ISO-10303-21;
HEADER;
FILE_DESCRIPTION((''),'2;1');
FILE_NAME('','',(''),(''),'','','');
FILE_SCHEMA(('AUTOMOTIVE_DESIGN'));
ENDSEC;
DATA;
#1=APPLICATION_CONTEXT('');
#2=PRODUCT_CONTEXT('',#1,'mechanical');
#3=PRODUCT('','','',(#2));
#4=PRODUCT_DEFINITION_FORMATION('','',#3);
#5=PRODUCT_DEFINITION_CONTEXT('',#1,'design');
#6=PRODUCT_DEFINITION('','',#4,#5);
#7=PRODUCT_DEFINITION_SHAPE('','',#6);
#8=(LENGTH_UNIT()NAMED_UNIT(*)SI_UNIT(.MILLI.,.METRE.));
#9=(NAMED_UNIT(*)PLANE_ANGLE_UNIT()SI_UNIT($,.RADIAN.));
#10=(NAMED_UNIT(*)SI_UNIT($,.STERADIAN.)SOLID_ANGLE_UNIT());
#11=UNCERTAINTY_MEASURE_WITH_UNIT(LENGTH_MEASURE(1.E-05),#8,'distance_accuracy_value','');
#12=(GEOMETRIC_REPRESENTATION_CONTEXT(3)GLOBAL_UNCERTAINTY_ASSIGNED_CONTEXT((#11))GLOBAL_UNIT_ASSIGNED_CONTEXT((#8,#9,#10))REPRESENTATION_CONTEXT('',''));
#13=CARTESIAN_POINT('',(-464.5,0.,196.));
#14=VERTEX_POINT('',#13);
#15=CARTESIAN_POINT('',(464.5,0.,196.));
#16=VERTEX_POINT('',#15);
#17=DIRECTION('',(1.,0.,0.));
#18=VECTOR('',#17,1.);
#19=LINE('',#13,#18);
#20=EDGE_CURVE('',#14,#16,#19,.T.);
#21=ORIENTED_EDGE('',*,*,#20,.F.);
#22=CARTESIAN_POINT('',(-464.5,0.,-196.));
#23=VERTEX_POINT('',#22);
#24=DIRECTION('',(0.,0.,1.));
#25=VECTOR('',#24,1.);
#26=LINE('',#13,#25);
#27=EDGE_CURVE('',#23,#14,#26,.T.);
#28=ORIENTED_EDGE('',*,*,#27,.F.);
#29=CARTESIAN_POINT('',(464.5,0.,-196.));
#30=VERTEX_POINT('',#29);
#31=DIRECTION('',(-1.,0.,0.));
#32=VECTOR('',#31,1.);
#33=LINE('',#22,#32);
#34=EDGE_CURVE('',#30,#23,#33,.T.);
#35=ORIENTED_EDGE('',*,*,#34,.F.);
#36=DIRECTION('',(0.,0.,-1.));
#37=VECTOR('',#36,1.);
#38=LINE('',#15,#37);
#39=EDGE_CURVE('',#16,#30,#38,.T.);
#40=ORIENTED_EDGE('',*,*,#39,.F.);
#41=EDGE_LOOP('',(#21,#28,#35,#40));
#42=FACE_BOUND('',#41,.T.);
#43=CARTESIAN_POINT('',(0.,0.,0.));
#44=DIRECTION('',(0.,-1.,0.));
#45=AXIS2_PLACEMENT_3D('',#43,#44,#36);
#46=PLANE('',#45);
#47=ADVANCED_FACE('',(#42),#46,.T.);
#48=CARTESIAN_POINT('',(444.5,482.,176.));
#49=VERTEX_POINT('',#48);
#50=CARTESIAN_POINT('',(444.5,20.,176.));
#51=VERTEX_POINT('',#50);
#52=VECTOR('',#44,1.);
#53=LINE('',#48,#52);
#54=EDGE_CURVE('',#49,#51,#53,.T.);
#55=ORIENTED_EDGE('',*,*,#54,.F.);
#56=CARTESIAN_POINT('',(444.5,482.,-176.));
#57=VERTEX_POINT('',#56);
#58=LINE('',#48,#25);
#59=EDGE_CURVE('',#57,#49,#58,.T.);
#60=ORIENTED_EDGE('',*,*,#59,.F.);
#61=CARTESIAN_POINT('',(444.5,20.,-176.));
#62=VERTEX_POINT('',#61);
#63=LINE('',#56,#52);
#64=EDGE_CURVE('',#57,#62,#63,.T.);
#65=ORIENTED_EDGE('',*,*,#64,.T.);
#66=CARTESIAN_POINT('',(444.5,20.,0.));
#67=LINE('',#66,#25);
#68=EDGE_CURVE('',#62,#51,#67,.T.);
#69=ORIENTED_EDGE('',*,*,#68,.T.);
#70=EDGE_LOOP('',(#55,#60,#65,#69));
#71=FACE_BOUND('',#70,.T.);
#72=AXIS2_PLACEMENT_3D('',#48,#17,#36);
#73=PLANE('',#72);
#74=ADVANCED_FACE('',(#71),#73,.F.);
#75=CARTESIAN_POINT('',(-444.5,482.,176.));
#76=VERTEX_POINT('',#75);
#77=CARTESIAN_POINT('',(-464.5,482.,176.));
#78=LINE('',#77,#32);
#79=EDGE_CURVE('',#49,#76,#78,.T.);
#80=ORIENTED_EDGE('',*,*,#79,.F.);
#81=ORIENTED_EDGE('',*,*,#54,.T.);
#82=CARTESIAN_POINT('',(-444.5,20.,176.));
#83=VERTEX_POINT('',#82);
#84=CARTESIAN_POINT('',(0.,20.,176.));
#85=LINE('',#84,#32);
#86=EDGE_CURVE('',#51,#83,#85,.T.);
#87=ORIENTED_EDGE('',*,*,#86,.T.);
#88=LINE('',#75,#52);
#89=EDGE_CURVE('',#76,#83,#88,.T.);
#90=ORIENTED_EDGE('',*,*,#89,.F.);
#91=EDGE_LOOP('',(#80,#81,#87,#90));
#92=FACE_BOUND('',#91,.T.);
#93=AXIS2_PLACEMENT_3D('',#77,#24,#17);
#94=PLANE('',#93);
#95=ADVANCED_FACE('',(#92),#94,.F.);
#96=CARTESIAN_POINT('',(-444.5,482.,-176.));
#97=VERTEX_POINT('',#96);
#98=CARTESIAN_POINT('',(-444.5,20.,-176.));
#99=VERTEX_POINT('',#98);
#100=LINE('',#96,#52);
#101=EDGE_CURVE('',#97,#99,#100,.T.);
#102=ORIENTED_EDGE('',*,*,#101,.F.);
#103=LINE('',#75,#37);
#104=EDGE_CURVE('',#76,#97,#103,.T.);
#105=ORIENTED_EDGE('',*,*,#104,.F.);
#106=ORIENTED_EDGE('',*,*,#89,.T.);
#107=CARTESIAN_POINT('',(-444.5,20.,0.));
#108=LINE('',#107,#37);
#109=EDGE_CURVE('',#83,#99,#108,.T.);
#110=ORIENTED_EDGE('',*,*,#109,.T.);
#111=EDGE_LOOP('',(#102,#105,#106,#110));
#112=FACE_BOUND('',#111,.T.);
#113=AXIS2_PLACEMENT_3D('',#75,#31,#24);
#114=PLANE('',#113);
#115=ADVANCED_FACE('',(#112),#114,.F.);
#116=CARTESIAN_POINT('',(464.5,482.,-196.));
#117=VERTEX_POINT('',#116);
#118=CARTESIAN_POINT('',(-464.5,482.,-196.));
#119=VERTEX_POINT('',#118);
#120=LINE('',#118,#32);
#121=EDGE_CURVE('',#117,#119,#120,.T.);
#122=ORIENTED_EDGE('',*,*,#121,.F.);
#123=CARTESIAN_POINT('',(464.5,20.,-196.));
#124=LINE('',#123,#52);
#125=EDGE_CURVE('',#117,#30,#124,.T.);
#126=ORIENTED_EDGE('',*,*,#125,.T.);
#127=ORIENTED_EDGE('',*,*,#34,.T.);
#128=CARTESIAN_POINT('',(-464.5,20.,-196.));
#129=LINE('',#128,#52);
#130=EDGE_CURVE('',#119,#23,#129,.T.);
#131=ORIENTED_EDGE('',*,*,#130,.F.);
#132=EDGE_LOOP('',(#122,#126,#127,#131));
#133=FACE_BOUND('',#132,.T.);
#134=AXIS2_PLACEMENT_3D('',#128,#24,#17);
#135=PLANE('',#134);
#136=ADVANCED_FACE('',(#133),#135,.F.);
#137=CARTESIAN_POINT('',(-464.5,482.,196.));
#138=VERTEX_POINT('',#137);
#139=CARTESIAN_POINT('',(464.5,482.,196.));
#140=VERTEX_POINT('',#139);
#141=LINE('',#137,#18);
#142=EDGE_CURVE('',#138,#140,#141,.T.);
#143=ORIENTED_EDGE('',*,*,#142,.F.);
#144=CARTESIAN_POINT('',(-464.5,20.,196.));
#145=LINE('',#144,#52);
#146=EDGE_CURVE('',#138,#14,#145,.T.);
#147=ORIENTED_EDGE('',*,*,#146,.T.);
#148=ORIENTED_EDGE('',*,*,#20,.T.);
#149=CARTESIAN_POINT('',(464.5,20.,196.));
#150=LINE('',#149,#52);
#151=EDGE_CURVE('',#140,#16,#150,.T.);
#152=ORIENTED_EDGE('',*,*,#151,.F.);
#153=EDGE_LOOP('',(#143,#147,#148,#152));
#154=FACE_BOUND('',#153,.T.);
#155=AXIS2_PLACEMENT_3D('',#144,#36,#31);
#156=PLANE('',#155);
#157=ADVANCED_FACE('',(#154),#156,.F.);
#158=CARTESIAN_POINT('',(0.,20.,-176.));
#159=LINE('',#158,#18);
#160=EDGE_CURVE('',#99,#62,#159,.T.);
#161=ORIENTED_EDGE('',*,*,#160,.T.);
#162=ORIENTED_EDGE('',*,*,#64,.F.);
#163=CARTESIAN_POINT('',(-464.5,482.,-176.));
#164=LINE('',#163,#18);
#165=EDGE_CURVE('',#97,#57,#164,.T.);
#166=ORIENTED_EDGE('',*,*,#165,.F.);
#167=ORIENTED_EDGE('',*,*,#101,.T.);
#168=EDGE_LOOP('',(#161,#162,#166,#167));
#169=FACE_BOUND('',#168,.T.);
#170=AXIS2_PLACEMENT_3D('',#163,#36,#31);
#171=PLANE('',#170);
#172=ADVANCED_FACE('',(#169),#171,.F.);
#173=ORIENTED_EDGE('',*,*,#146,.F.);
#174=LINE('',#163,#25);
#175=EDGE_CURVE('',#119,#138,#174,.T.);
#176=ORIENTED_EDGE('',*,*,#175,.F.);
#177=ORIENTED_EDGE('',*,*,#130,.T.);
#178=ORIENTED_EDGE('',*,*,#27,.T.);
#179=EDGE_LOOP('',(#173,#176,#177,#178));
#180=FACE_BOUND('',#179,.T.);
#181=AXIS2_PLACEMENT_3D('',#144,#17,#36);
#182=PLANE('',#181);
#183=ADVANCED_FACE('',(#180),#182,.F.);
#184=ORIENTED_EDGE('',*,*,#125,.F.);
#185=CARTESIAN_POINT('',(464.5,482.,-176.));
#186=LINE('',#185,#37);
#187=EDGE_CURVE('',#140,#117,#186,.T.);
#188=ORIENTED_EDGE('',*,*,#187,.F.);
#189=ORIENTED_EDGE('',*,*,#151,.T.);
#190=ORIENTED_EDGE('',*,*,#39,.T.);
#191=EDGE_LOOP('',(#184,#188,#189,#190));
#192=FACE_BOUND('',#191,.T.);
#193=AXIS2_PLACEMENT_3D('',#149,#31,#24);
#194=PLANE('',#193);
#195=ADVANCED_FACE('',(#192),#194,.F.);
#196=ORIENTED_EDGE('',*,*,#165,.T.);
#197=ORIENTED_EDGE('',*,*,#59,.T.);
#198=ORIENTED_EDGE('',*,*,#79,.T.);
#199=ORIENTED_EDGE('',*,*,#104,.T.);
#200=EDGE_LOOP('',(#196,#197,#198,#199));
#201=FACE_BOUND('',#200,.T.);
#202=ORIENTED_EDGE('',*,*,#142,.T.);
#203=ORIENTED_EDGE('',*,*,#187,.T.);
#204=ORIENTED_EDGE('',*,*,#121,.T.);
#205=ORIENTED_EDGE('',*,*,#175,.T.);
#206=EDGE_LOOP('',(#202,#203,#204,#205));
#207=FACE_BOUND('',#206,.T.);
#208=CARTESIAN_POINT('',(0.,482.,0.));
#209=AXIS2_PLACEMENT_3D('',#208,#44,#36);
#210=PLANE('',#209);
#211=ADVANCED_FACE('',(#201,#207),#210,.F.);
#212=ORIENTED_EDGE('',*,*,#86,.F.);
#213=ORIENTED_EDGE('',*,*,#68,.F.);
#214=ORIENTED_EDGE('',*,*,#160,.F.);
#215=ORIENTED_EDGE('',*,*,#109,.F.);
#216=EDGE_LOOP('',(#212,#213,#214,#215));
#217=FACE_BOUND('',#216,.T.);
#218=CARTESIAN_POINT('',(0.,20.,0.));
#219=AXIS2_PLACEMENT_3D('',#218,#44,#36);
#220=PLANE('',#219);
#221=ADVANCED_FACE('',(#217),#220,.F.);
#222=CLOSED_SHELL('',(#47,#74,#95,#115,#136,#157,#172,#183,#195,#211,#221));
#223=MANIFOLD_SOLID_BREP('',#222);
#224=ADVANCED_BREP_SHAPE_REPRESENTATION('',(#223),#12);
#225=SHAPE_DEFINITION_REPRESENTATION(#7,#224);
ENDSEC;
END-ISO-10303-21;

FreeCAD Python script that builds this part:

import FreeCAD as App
import Part
import Sketcher

V = App.Vector


def add_polygon(sketch, points):
    """Adds a closed chain of lines whose ends are joined by coincident constraints."""
    first, n = sketch.GeometryCount, len(points)
    for a, b in zip(points, points[1:] + points[:1]):
        sketch.addGeometry(Part.LineSegment(App.Vector(*a, 0), App.Vector(*b, 0)), False)
    for i in range(n):
        sketch.addConstraint(Sketcher.Constraint("Coincident", first + i, 2, first + (i + 1) % n, 1))

doc = App.newDocument("Part")
body = doc.addObject("PartDesign::Body", "Body")

sketch1 = body.newObject("Sketcher::SketchObject", "Sketch")
sketch1.AttachmentSupport = (doc.getObject("XZ_Plane"), [""])
sketch1.MapMode = "FlatFace"
add_polygon(sketch1, [(-464, -196), (-464, 196), (464, 196), (464, -196)])
sketch1.addConstraint([
    Sketcher.Constraint("Vertical", 0),
    Sketcher.Constraint("Horizontal", 1),
    Sketcher.Constraint("Vertical", 2),
    Sketcher.Constraint("Horizontal", 3),
    Sketcher.Constraint("Symmetric", 0, 2, 2, 2, -1, 1),
    Sketcher.Constraint("DistanceX", 1, 1, 1, 2, 929.0),
    Sketcher.Constraint("DistanceY", 0, 1, 0, 2, 392.0),
])
pad1 = body.newObject("PartDesign::Pad", "Pad")
pad1.Profile = sketch1
pad1.Length = 20
pad1.Reversed = True

sketch2 = body.newObject("Sketcher::SketchObject", "Sketch001")
sketch2.AttachmentSupport = (doc.getObject("XZ_Plane"), [""])
sketch2.MapMode = "FlatFace"
add_polygon(sketch2, [(-464, -196), (-464, -176), (464, -176), (464, -196)])
sketch2.addConstraint([
    Sketcher.Constraint("Vertical", 0),
    Sketcher.Constraint("Horizontal", 1),
    Sketcher.Constraint("Vertical", 2),
    Sketcher.Constraint("Horizontal", 3),
    Sketcher.Constraint("DistanceX", 1, 1, 1, 2, 929.0),
    Sketcher.Constraint("DistanceY", 0, 1, 0, 2, 20.0),
    Sketcher.Constraint("DistanceY", 0, 2, -1, 1, 176.0),
    Sketcher.Constraint("DistanceX", 0, 2, -1, 1, 464.5),
])
pad2 = body.newObject("PartDesign::Pad", "Pad001")
pad2.Profile = sketch2
pad2.Length = 482
pad2.Reversed = True

sketch3 = body.newObject("Sketcher::SketchObject", "Sketch002")
sketch3.AttachmentSupport = (doc.getObject("XZ_Plane"), [""])
sketch3.MapMode = "FlatFace"
add_polygon(sketch3, [(-464, 176), (-464, 196), (464, 196), (464, 176)])
sketch3.addConstraint([
    Sketcher.Constraint("Vertical", 0),
    Sketcher.Constraint("Horizontal", 1),
    Sketcher.Constraint("Vertical", 2),
    Sketcher.Constraint("Horizontal", 3),
    Sketcher.Constraint("DistanceX", 1, 1, 1, 2, 929.0),
    Sketcher.Constraint("DistanceY", 0, 1, 0, 2, 20.0),
    Sketcher.Constraint("DistanceY", -1, 1, 0, 2, 196.0),
    Sketcher.Constraint("DistanceX", 0, 2, -1, 1, 464.5),
])
pad3 = body.newObject("PartDesign::Pad", "Pad002")
pad3.Profile = sketch3
pad3.Length = 482
pad3.Reversed = True

sketch4 = body.newObject("Sketcher::SketchObject", "Sketch003")
sketch4.AttachmentSupport = (doc.getObject("XZ_Plane"), [""])
sketch4.MapMode = "FlatFace"
add_polygon(sketch4, [(444, -176), (444, 176), (464, 176), (464, -176)])
sketch4.addConstraint([
    Sketcher.Constraint("Vertical", 0),
    Sketcher.Constraint("Horizontal", 1),
    Sketcher.Constraint("Vertical", 2),
    Sketcher.Constraint("Horizontal", 3),
    Sketcher.Constraint("DistanceX", 1, 1, 1, 2, 20.0),
    Sketcher.Constraint("DistanceY", 0, 1, 0, 2, 352.0),
    Sketcher.Constraint("DistanceY", -1, 1, 0, 2, 176.0),
    Sketcher.Constraint("DistanceX", -1, 1, 0, 2, 444.5),
])
pad4 = body.newObject("PartDesign::Pad", "Pad003")
pad4.Profile = sketch4
pad4.Length = 482
pad4.Reversed = True

sketch5 = body.newObject("Sketcher::SketchObject", "Sketch004")
sketch5.AttachmentSupport = (doc.getObject("XZ_Plane"), [""])
sketch5.MapMode = "FlatFace"
add_polygon(sketch5, [(-464, -176), (-464, 176), (-444, 176), (-444, -176)])
sketch5.addConstraint([
    Sketcher.Constraint("Vertical", 0),
    Sketcher.Constraint("Horizontal", 1),
    Sketcher.Constraint("Vertical", 2),
    Sketcher.Constraint("Horizontal", 3),
    Sketcher.Constraint("DistanceX", 1, 1, 1, 2, 20.0),
    Sketcher.Constraint("DistanceY", 0, 1, 0, 2, 352.0),
    Sketcher.Constraint("DistanceY", -1, 1, 0, 2, 176.0),
    Sketcher.Constraint("DistanceX", 0, 2, -1, 1, 464.5),
])
pad5 = body.newObject("PartDesign::Pad", "Pad004")
pad5.Profile = sketch5
pad5.Length = 482
pad5.Reversed = True

doc.recompute()
